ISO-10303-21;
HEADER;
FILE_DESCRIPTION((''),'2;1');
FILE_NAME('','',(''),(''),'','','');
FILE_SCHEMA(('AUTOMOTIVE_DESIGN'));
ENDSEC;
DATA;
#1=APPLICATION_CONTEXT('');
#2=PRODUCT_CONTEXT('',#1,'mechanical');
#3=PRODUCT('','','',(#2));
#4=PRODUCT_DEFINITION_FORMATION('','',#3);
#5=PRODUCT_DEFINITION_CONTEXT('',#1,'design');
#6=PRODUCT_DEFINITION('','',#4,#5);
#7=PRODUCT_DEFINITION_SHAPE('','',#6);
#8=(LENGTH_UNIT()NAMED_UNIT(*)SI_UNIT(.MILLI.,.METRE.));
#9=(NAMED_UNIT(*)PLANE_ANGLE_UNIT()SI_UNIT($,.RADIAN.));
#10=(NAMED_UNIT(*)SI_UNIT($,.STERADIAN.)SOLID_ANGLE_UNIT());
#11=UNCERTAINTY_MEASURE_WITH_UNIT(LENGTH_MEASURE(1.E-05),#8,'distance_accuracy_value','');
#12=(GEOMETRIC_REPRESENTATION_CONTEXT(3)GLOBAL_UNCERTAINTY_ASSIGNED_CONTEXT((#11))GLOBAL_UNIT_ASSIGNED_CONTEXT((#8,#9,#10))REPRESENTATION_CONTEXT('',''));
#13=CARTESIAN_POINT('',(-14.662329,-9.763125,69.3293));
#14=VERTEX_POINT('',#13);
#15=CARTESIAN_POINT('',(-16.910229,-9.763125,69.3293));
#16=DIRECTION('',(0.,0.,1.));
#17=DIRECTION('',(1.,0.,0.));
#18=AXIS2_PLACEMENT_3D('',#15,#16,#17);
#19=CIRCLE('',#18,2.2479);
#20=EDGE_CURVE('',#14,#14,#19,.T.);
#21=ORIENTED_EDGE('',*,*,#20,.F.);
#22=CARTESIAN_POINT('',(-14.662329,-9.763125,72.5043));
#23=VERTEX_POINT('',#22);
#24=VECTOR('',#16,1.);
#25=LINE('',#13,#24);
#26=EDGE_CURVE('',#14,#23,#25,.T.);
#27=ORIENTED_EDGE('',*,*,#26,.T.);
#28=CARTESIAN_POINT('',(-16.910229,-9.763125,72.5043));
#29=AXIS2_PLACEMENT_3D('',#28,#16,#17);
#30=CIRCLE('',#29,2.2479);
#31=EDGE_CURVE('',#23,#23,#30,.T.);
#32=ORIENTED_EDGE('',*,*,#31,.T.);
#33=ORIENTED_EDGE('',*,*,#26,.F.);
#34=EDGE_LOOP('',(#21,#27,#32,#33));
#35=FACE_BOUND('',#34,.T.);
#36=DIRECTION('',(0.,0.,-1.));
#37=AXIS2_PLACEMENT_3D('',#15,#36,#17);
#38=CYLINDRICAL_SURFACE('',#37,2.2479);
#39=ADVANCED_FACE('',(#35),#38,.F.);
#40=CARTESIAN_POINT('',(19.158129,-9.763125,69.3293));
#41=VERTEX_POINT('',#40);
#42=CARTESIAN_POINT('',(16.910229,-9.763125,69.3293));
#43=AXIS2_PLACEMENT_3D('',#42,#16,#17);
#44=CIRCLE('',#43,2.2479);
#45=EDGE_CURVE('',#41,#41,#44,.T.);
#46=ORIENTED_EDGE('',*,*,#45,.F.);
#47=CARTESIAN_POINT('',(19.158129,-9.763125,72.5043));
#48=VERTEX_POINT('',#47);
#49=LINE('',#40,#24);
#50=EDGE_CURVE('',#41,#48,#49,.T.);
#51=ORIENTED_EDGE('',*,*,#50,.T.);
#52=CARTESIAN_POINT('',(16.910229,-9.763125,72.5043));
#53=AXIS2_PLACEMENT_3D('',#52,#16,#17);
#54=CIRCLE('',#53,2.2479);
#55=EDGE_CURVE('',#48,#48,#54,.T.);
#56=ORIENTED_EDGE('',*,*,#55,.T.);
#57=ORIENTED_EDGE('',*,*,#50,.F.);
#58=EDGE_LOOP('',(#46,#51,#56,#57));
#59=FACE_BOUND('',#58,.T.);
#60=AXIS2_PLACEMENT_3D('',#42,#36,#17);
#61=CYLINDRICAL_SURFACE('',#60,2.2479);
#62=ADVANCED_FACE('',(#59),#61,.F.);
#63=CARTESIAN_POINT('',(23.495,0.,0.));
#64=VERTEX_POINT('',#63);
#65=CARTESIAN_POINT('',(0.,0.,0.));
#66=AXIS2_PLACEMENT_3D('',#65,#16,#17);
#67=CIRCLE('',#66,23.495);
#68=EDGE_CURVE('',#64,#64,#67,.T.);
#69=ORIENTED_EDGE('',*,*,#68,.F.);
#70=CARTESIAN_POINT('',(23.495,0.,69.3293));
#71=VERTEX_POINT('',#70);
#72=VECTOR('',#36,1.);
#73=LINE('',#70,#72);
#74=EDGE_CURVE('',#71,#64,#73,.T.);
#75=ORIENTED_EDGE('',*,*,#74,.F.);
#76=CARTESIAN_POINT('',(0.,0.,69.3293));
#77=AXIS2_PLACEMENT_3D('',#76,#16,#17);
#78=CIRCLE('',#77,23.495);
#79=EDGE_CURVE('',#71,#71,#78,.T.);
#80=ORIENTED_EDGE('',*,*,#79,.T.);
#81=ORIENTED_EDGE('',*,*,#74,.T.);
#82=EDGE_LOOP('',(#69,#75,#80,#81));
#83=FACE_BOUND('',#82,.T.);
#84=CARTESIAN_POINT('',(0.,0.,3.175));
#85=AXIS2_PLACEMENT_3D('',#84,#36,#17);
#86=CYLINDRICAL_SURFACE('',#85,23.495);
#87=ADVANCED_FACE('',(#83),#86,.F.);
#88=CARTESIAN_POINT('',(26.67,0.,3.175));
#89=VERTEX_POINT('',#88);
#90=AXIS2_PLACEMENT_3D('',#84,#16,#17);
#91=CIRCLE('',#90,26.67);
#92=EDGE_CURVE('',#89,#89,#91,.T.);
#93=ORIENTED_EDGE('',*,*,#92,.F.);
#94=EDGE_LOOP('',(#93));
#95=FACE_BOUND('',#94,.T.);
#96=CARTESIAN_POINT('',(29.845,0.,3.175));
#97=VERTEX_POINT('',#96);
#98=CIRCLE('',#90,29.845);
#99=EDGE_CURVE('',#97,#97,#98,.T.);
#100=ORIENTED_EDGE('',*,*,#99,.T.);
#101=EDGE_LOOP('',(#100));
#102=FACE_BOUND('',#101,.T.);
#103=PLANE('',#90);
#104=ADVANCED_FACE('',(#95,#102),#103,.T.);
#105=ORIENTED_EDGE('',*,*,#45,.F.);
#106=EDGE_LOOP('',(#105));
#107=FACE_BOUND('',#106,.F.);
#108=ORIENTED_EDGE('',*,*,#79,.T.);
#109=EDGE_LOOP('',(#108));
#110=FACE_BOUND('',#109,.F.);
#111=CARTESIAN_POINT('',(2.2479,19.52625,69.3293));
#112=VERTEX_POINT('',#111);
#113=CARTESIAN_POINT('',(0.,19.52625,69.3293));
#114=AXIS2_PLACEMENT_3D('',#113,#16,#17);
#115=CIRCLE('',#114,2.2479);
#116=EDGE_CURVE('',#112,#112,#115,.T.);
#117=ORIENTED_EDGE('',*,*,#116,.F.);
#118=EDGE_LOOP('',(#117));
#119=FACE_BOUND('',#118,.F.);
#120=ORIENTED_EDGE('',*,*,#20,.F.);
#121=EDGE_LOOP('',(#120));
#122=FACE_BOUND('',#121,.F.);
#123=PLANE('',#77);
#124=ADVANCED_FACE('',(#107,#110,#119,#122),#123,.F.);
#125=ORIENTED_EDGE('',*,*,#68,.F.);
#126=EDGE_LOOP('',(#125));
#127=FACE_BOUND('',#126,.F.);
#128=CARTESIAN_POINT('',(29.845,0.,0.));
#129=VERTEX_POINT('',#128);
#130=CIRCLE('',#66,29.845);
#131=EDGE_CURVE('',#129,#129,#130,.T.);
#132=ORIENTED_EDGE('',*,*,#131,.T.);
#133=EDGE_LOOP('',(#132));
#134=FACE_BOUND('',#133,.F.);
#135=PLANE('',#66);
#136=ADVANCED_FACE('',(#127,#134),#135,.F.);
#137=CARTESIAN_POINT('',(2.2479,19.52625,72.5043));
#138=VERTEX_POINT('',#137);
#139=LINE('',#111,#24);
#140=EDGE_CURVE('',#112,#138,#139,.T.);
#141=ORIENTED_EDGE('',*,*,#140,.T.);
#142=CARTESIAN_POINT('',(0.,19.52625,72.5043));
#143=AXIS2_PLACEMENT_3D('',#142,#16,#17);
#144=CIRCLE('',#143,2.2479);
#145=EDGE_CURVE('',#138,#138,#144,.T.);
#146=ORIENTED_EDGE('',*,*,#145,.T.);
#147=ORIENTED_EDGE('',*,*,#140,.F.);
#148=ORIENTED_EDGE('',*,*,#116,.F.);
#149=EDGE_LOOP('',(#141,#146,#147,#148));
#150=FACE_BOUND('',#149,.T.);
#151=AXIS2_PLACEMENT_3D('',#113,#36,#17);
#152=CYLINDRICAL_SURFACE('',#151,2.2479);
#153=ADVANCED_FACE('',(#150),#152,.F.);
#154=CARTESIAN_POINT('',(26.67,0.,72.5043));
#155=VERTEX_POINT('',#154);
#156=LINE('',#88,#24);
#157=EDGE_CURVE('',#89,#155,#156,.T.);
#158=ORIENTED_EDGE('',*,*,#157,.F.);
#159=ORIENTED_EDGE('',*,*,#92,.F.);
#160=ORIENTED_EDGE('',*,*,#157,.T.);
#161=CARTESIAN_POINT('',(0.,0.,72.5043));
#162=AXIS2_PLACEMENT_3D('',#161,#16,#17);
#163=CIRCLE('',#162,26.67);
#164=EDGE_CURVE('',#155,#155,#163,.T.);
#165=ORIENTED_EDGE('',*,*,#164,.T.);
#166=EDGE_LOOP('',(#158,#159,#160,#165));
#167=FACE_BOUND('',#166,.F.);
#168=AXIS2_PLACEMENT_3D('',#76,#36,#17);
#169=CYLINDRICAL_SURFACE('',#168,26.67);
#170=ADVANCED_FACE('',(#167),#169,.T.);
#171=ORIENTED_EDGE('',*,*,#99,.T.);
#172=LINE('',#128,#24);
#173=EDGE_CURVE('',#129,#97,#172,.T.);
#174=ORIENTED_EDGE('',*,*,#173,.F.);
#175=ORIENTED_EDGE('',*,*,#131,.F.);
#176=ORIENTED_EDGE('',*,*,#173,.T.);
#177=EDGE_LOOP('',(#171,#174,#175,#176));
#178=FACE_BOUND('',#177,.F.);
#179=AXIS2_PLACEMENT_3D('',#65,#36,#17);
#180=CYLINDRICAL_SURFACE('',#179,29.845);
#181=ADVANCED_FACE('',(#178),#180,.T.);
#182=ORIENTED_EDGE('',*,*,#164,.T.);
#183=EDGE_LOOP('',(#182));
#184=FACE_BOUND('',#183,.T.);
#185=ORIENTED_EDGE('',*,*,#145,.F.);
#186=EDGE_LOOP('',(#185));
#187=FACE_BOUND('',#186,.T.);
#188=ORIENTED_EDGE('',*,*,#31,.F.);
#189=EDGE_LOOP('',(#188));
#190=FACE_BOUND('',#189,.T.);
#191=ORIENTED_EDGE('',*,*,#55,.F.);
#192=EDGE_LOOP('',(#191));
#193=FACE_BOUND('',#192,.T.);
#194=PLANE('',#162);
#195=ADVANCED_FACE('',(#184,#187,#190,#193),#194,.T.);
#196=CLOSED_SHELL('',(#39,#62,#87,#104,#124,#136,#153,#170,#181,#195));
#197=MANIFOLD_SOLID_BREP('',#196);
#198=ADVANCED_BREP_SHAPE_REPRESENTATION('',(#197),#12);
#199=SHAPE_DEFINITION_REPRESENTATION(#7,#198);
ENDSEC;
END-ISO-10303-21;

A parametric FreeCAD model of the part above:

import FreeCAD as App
import Part
import Sketcher
from FreeCAD import Vector
Q = App.Units.Quantity

doc = App.newDocument("Part")
body = doc.addObject("PartDesign::Body", "Body")

sketch1 = body.newObject("Sketcher::SketchObject", "Sketch")
sketch1.AttachmentSupport = (doc.getObject("XY_Plane"), [""])
sketch1.MapMode = "FlatFace"
sketch1.addGeometry([
    Part.Circle(Vector(0, 0, 0), Vector(0, 0, 1), 29.845),
    Part.Circle(Vector(0, 0, 0), Vector(0, 0, 1), 23.495),
], False)
sketch1.addConstraint([
    Sketcher.Constraint("Coincident", 0, 3, -1, 1),
    Sketcher.Constraint("Coincident", 1, 3, -1, 1),
    Sketcher.Constraint("Diameter", 0, Q("2.35 in")),
    Sketcher.Constraint("Diameter", 1, Q("1.85 in")),
])
pad1 = body.newObject("PartDesign::Pad", "Pad")
pad1.Profile = sketch1
pad1.Length = Q("0.125 in")

sketch2 = body.newObject("Sketcher::SketchObject", "Sketch001")
sketch2.AttachmentSupport = (doc.getObject("XY_Plane"), [""])
sketch2.MapMode = "FlatFace"
sketch2.AttachmentOffset = App.Placement(Vector(0, 0, 0.125 * 25.4), App.Rotation())
sketch2.addGeometry([
    Part.Circle(Vector(0, 0, 0), Vector(0, 0, 1), 26.67),
    Part.Circle(Vector(0, 0, 0), Vector(0, 0, 1), 23.495),
], False)
sketch2.addConstraint([
    Sketcher.Constraint("Coincident", 0, 3, -1, 1),
    Sketcher.Constraint("Coincident", 1, 3, -1, 1),
    Sketcher.Constraint("Diameter", 0, Q("2.1 in")),
    Sketcher.Constraint("Diameter", 1, Q("1.85 in")),
])
pad2 = body.newObject("PartDesign::Pad", "Pad001")
pad2.Profile = sketch2
pad2.Length = Q("2.6045 in")

sketch3 = body.newObject("Sketcher::SketchObject", "Sketch002")
sketch3.AttachmentSupport = (doc.getObject("XY_Plane"), [""])
sketch3.MapMode = "FlatFace"
sketch3.AttachmentOffset = App.Placement(Vector(0, 0, 2.7295 * 25.4), App.Rotation())
sketch3.addGeometry([
    Part.Circle(Vector(0, 0, 0), Vector(0, 0, 1), 26.67),
    Part.Circle(Vector(-16.910229, -9.763125, 0), Vector(0, 0, 1), 2.2479),
    Part.Circle(Vector(16.910229, -9.763125, 0), Vector(0, 0, 1), 2.2479),
    Part.Circle(Vector(0, 19.52625, 0), Vector(0, 0, 1), 2.2479),
], False)
sketch3.addConstraint([
    Sketcher.Constraint("Coincident", 0, 3, -1, 1),
    Sketcher.Constraint("Equal", 1, 2),
    Sketcher.Constraint("Equal", 2, 3),
    Sketcher.Constraint("Symmetric", 1, 3, 2, 3, -2),
    Sketcher.Constraint("PointOnObject", 3, 3, -2),
    Sketcher.Constraint("Diameter", 0, Q("2.1 in")),
    Sketcher.Constraint("Diameter", 1, Q("0.177 in")),
    Sketcher.Constraint("DistanceX", 1, 3, -1, 1, 16.910229),
    Sketcher.Constraint("DistanceY", -1, 1, 3, 3, 19.52625),
    Sketcher.Constraint("DistanceY", 1, 3, -1, 1, 9.763125),
])
pad3 = body.newObject("PartDesign::Pad", "Pad002")
pad3.Profile = sketch3
pad3.Length = Q("0.125 in")

doc.recompute()
